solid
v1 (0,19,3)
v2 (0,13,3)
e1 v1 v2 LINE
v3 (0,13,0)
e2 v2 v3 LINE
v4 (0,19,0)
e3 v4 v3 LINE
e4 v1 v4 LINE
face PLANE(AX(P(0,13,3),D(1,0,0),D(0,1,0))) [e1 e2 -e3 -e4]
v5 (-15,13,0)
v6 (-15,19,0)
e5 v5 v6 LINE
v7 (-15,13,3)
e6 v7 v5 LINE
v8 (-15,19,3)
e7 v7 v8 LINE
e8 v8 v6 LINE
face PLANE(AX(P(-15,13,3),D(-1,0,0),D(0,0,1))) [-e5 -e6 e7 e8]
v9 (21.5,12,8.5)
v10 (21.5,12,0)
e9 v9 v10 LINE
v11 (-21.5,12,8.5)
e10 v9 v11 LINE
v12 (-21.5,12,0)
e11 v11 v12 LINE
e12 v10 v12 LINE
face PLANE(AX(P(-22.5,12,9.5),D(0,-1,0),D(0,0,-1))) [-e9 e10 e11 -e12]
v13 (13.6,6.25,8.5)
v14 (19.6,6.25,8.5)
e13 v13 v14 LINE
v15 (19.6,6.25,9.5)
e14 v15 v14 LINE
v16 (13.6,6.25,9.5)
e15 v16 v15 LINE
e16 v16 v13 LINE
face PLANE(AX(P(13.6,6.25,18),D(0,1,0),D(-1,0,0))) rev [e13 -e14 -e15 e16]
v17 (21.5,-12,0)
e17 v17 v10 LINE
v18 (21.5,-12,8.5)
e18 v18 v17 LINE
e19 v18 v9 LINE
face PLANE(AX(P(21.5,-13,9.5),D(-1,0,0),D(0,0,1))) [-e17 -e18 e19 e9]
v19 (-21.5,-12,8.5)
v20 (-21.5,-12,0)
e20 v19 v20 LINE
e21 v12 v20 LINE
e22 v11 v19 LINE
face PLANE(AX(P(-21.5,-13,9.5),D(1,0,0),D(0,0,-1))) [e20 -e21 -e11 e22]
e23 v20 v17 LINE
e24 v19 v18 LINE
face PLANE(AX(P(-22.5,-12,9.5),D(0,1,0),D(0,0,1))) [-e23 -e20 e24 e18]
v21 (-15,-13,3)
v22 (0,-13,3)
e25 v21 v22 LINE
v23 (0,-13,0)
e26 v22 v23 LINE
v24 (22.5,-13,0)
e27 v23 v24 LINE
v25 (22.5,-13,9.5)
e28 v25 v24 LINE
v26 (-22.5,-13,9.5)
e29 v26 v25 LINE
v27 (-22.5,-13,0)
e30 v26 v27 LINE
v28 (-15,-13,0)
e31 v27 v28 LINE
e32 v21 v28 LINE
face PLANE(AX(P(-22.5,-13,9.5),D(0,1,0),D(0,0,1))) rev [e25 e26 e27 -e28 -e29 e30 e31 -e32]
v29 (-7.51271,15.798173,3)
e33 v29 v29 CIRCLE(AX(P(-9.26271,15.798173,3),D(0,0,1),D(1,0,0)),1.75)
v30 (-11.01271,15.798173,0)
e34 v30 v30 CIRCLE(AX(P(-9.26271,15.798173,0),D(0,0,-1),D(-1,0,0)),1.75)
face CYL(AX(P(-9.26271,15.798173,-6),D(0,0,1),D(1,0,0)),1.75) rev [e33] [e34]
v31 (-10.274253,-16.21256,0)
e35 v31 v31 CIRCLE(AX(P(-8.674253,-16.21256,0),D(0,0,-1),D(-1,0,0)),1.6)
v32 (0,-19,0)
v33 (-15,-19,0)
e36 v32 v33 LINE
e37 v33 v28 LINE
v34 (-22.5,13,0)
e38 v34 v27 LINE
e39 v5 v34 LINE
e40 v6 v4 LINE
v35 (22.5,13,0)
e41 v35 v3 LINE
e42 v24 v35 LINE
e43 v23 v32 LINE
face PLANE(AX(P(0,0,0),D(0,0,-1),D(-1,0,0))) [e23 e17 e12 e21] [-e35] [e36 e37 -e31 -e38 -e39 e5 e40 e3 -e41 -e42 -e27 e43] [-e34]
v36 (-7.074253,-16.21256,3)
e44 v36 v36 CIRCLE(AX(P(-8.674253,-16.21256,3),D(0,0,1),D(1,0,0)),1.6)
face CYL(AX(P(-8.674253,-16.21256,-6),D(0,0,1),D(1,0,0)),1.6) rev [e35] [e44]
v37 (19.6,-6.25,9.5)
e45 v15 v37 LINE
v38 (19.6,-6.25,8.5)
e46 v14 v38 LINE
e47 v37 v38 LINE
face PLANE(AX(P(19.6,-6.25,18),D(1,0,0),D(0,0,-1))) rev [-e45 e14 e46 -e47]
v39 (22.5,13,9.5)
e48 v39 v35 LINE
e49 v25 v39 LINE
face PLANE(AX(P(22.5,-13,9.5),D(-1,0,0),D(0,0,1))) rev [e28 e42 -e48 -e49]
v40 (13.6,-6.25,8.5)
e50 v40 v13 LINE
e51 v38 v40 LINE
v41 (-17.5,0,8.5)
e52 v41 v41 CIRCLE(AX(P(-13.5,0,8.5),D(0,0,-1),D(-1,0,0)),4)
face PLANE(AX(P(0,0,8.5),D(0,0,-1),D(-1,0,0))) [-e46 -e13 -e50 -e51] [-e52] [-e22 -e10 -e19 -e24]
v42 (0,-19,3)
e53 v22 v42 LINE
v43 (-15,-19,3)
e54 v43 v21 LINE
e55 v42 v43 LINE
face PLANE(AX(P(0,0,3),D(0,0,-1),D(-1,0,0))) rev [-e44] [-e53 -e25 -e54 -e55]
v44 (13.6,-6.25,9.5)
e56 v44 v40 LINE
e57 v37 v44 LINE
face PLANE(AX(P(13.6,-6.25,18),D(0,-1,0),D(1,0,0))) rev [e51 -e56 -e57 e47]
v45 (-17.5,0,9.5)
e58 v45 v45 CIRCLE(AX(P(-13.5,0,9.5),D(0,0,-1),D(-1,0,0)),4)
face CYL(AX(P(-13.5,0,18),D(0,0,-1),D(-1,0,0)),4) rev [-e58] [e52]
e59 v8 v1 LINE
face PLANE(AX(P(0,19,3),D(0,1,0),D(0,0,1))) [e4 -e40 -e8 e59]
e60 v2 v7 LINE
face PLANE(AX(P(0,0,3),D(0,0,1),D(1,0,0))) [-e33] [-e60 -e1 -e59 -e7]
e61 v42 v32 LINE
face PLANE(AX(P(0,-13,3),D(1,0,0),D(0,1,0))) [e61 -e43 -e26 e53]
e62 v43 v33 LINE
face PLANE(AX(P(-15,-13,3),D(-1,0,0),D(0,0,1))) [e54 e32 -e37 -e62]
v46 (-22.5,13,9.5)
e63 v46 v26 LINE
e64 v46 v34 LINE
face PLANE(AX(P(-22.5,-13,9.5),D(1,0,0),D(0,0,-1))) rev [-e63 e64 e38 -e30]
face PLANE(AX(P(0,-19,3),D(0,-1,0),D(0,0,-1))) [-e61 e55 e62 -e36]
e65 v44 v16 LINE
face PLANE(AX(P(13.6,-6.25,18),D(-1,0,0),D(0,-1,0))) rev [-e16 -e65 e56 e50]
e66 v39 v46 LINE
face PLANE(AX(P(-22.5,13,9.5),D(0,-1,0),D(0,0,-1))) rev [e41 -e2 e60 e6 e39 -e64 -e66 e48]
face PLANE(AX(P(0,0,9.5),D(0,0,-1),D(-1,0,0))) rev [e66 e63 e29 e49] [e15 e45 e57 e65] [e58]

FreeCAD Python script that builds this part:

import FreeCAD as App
import Part
import Sketcher
Q = App.Units.Quantity


def faces_at(feature, points):
    """Names of the faces that lie closest to the given points."""
    faces = feature.Shape.Faces
    near = lambda p: min(range(len(faces)), key=lambda i: faces[i].distToShape(Part.Vertex(*p))[0])
    return sorted({f"Face{near(p) + 1}" for p in points})


def add_polygon(sketch, points):
    """Adds a closed chain of lines whose ends are joined by coincident constraints."""
    first, n = sketch.GeometryCount, len(points)
    for a, b in zip(points, points[1:] + points[:1]):
        sketch.addGeometry(Part.LineSegment(App.Vector(*a, 0), App.Vector(*b, 0)), False)
    for i in range(n):
        sketch.addConstraint(Sketcher.Constraint("Coincident", first + i, 2, first + (i + 1) % n, 1))

doc = App.newDocument("Part")
params = doc.addObject("Spreadsheet::Sheet", "Params")
for row, (alias, value) in enumerate([
    ("sketch1_width", "45 mm"),
    ("sketch1_height", "26 mm"),
    ("pad1_length", "9.5 mm"),
    ("thickness_wall", "1 mm"),
    ("sketch2_diameter", "8 mm"),
    ("sketch2_width", "6 mm"),
    ("sketch2_height", "12.5 mm"),
    ("pocket1_length", "9.5 mm"),
    ("sketch3_width", "15 mm"),
    ("sketch3_height", "6 mm"),
    ("pad2_length", "3 mm"),
    ("sketch4_diameter", "3.2 mm"),
    ("pocket2_length", "9 mm"),
    ("sketch5_diameter", "3.5 mm"),
    ("pocket3_length", "9 mm"),
], start=1):
    params.set(f"A{row}", alias)
    params.set(f"B{row}", "=" + value)
    params.setAlias(f"B{row}", alias)

body = doc.addObject("PartDesign::Body", "Body")

# Sketch on XY plane
sketch1 = body.newObject("Sketcher::SketchObject", "Sketch")
sketch1.AttachmentSupport = (doc.getObject("XY_Plane"), [""])
sketch1.MapMode = "FlatFace"
add_polygon(sketch1, [(-22.5, 13), (-22.5, -13), (22.5, -13), (22.5, 13)])  # lines 0-3
sketch1.addConstraint(Sketcher.Constraint("Vertical", 0))
sketch1.addConstraint(Sketcher.Constraint("Horizontal", 1))
sketch1.addConstraint(Sketcher.Constraint("Vertical", 2))
sketch1.addConstraint(Sketcher.Constraint("Horizontal", 3))
sketch1.addConstraint(Sketcher.Constraint("Symmetric", 0, 2, 2, 2, -1, 1))
sketch1.addConstraint(Sketcher.Constraint("DistanceX", 1, 1, 1, 2, Q("45 mm")))
sketch1.addConstraint(Sketcher.Constraint("DistanceY", 0, 2, 0, 1, Q("26 mm")))
sketch1.setExpression("Constraints[9]", "Params.sketch1_width")
sketch1.setExpression("Constraints[10]", "Params.sketch1_height")
pad1 = body.newObject("PartDesign::Pad", "Pad")
pad1.Profile = sketch1
pad1.setExpression("Length", "Params.pad1_length")
doc.recompute()

thickness = body.newObject("PartDesign::Thickness", "Thickness")
thickness.Base = (pad1, faces_at(pad1, [(0, 0, 0)]))
thickness.setExpression("Value", "Params.thickness_wall")
thickness.Reversed = True
thickness.Join = "Intersection"

# Sketch on XY plane
sketch2 = body.newObject("Sketcher::SketchObject", "Sketch001")
sketch2.AttachmentSupport = (doc.getObject("XY_Plane"), [""])
sketch2.MapMode = "FlatFace"
sketch2.AttachmentOffset = App.Placement(App.Vector(0, 0, 8.5), App.Rotation())
sketch2.addGeometry(Part.Circle(App.Vector(-13.5, 0, 0), App.Vector(0, 0, 1), 4), False)  # 0
add_polygon(sketch2, [(19.6, 6.25), (19.6, -6.25), (13.6, -6.25), (13.6, 6.25)])  # lines 1-4
sketch2.addConstraint(Sketcher.Constraint("Vertical", 1))
sketch2.addConstraint(Sketcher.Constraint("Horizontal", 2))
sketch2.addConstraint(Sketcher.Constraint("Vertical", 3))
sketch2.addConstraint(Sketcher.Constraint("Horizontal", 4))
sketch2.addConstraint(Sketcher.Constraint("PointOnObject", 0, 3, -1))
sketch2.addConstraint(Sketcher.Constraint("Diameter", 0, Q("8 mm")))
sketch2.addConstraint(Sketcher.Constraint("DistanceX", 2, 2, 2, 1, Q("6 mm")))
sketch2.addConstraint(Sketcher.Constraint("DistanceY", 1, 2, 1, 1, Q("12.5 mm")))
sketch2.addConstraint(Sketcher.Constraint("DistanceX", 0, 3, -1, 1, Q("13.5 mm")))
sketch2.addConstraint(Sketcher.Constraint("DistanceX", -1, 1, 1, 2, Q("19.6 mm")))
sketch2.addConstraint(Sketcher.Constraint("DistanceY", 1, 2, -1, 1, Q("6.25 mm")))
sketch2.setExpression("Constraints[9]", "Params.sketch2_diameter")
sketch2.setExpression("Constraints[10]", "Params.sketch2_width")
sketch2.setExpression("Constraints[11]", "Params.sketch2_height")
pocket1 = body.newObject("PartDesign::Pocket", "Pocket")
pocket1.Profile = sketch2
pocket1.setExpression("Length", "Params.pocket1_length")
pocket1.Reversed = True

# Sketch on XY plane
sketch3 = body.newObject("Sketcher::SketchObject", "Sketch002")
sketch3.AttachmentSupport = (doc.getObject("XY_Plane"), [""])
sketch3.MapMode = "FlatFace"
add_polygon(sketch3, [(0, 19), (0, 13), (-15, 13), (-15, 19)])  # lines 0-3
add_polygon(sketch3, [(0, -13), (0, -19), (-15, -19), (-15, -13)])  # lines 4-7
sketch3.addConstraint(Sketcher.Constraint("Vertical", 0))
sketch3.addConstraint(Sketcher.Constraint("Horizontal", 1))
sketch3.addConstraint(Sketcher.Constraint("Vertical", 2))
sketch3.addConstraint(Sketcher.Constraint("Horizontal", 3))
sketch3.addConstraint(Sketcher.Constraint("Vertical", 4))
sketch3.addConstraint(Sketcher.Constraint("Horizontal", 5))
sketch3.addConstraint(Sketcher.Constraint("Vertical", 6))
sketch3.addConstraint(Sketcher.Constraint("Horizontal", 7))
sketch3.addConstraint(Sketcher.Constraint("Symmetric", 3, 2, 4, 2, -1, 1))
sketch3.addConstraint(Sketcher.Constraint("Symmetric", 1, 2, 6, 2, -1))
sketch3.addConstraint(Sketcher.Constraint("PointOnObject", 0, 2, -2))
sketch3.addConstraint(Sketcher.Constraint("DistanceX", 1, 2, 1, 1, Q("15 mm")))
sketch3.addConstraint(Sketcher.Constraint("DistanceY", 0, 2, 0, 1, Q("6 mm")))
sketch3.addConstraint(Sketcher.Constraint("DistanceY", -1, 1, 0, 2, Q("13 mm")))
sketch3.setExpression("Constraints[19]", "Params.sketch3_width")
sketch3.setExpression("Constraints[20]", "Params.sketch3_height")
pad2 = body.newObject("PartDesign::Pad", "Pad001")
pad2.Profile = sketch3
pad2.setExpression("Length", "Params.pad2_length")

# Sketch on XY plane
sketch4 = body.newObject("Sketcher::SketchObject", "Sketch003")
sketch4.AttachmentSupport = (doc.getObject("XY_Plane"), [""])
sketch4.MapMode = "FlatFace"
sketch4.AttachmentOffset = App.Placement(App.Vector(0, 0, 3), App.Rotation())
sketch4.addGeometry(Part.Circle(App.Vector(-8.674253, -16.21256, 0), App.Vector(0, 0, 1), 1.6), False)
sketch4.addConstraint(Sketcher.Constraint("Diameter", 0, Q("3.2 mm")))
sketch4.addConstraint(Sketcher.Constraint("DistanceY", 0, 3, -1, 1, Q("16.21256 mm")))
sketch4.addConstraint(Sketcher.Constraint("DistanceX", 0, 3, -1, 1, Q("8.674253 mm")))
sketch4.setExpression("Constraints[0]", "Params.sketch4_diameter")
pocket2 = body.newObject("PartDesign::Pocket", "Pocket001")
pocket2.Profile = sketch4
pocket2.setExpression("Length", "Params.pocket2_length")

# Sketch on XY plane
sketch5 = body.newObject("Sketcher::SketchObject", "Sketch004")
sketch5.AttachmentSupport = (doc.getObject("XY_Plane"), [""])
sketch5.MapMode = "FlatFace"
sketch5.AttachmentOffset = App.Placement(App.Vector(0, 0, 3), App.Rotation())
sketch5.addGeometry(Part.Circle(App.Vector(-9.26271, 15.798173, 0), App.Vector(0, 0, 1), 1.75), False)
sketch5.addConstraint(Sketcher.Constraint("Diameter", 0, Q("3.5 mm")))
sketch5.addConstraint(Sketcher.Constraint("DistanceX", 0, 3, -1, 1, Q("9.26271 mm")))
sketch5.addConstraint(Sketcher.Constraint("DistanceY", -1, 1, 0, 3, Q("15.798173 mm")))
sketch5.setExpression("Constraints[0]", "Params.sketch5_diameter")
pocket3 = body.newObject("PartDesign::Pocket", "Pocket002")
pocket3.Profile = sketch5
pocket3.setExpression("Length", "Params.pocket3_length")

doc.recompute()
